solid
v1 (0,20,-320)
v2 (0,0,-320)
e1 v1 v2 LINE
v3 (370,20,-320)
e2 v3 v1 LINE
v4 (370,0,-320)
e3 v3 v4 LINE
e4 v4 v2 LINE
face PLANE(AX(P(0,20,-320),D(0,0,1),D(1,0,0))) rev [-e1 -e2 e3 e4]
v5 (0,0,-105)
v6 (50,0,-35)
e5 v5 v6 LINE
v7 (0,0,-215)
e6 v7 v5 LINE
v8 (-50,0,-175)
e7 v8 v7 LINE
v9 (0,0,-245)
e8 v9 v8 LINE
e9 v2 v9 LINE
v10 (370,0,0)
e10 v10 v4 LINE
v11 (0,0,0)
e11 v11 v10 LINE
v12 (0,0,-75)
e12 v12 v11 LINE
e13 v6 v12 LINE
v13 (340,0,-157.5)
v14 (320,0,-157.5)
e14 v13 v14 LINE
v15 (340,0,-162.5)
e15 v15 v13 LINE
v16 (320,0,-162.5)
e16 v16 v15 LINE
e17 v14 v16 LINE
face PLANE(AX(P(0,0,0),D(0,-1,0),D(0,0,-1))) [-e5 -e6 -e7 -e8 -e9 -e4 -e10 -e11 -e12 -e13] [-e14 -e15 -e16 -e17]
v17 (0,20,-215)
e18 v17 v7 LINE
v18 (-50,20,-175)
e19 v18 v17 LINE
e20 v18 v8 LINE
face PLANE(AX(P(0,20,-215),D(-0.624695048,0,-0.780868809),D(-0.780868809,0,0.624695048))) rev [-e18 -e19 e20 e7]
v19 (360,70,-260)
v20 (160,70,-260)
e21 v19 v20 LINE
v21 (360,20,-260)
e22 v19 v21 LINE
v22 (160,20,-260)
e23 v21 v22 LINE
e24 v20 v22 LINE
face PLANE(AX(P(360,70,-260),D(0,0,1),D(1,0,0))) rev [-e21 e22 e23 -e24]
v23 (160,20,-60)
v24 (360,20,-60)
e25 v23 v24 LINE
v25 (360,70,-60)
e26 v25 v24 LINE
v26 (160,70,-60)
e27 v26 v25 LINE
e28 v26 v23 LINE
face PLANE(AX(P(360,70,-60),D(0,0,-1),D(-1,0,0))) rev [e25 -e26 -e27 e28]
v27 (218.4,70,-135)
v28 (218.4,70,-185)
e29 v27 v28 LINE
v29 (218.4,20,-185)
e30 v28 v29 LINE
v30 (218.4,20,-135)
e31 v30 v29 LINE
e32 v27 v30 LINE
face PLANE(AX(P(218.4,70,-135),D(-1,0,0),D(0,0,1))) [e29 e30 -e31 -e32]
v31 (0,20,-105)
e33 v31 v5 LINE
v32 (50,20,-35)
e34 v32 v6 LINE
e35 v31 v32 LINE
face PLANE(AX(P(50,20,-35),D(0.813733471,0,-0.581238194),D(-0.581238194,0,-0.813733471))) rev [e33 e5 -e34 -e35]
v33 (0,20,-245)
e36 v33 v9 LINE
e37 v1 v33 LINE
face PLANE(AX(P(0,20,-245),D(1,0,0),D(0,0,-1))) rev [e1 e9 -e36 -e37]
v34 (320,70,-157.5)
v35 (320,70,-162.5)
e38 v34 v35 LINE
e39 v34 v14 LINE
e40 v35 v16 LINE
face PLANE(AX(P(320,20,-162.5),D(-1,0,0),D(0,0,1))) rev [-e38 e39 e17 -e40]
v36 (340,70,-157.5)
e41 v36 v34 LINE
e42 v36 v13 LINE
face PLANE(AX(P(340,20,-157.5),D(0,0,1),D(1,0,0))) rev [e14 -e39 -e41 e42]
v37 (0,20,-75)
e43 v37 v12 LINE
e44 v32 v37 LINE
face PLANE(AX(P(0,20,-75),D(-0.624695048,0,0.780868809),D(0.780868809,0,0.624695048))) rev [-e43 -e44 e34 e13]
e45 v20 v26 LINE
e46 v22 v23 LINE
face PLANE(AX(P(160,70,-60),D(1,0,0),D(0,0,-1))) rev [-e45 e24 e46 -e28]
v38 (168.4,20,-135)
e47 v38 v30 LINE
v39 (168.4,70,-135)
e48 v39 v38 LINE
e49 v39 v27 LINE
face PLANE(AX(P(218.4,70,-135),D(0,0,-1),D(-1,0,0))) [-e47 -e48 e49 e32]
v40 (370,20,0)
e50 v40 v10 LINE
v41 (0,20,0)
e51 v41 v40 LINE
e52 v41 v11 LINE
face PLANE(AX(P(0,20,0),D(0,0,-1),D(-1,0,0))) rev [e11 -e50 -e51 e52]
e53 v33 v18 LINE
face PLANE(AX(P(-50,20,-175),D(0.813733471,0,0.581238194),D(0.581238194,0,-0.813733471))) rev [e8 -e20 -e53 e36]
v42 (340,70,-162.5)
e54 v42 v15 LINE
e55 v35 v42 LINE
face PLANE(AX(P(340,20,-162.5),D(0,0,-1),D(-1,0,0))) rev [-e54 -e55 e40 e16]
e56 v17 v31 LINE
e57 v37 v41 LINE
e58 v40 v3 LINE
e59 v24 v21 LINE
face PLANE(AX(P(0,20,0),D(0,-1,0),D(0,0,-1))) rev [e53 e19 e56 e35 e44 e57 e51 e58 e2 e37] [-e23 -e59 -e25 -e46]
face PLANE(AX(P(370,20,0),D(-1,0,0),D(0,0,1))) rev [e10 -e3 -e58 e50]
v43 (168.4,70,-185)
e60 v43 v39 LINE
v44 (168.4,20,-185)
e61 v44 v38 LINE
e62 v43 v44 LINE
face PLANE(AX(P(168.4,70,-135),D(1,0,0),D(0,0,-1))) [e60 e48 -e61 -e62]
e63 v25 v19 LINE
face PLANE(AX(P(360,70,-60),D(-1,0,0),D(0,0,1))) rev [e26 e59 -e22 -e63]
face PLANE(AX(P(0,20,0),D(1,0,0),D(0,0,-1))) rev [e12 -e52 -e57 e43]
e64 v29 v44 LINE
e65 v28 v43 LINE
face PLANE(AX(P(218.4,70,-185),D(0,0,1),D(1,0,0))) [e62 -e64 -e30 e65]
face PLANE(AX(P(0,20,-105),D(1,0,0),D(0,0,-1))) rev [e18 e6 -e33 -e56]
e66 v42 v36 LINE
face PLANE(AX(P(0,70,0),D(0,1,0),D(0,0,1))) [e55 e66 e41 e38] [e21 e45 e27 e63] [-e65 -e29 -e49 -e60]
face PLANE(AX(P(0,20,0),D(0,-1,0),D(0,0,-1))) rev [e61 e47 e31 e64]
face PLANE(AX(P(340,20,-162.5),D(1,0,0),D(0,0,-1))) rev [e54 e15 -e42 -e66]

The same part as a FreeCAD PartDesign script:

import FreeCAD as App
import Part
import Sketcher

V = App.Vector


def add_polygon(sketch, points):
    """Adds a closed chain of lines whose ends are joined by coincident constraints."""
    first, n = sketch.GeometryCount, len(points)
    for a, b in zip(points, points[1:] + points[:1]):
        sketch.addGeometry(Part.LineSegment(App.Vector(*a, 0), App.Vector(*b, 0)), False)
    for i in range(n):
        sketch.addConstraint(Sketcher.Constraint("Coincident", first + i, 2, first + (i + 1) % n, 1))

doc = App.newDocument("Part")
params = doc.addObject("Spreadsheet::Sheet", "Params")
for row, (alias, value) in enumerate([
    ("sketch1_width", "370 mm"),
    ("sketch1_height", "75 mm"),
    ("sketch1_height2", "320 mm"),
    ("sketch1_height3", "110 mm"),
    ("pad1_length", "20 mm"),
    ("sketch2_width", "20 mm"),
    ("sketch2_height", "5 mm"),
    ("sketch3_width", "200 mm"),
    ("sketch3_width2", "50 mm"),
    ("pad2_length", "50 mm"),
    ("sketch4_width", "20 mm"),
    ("sketch4_height", "5 mm"),
], start=1):
    params.set(f"A{row}", alias)
    params.set(f"B{row}", "=" + value)
    params.setAlias(f"B{row}", alias)

body = doc.addObject("PartDesign::Body", "Body")

sketch1 = doc.addObject("Sketcher::SketchObject", "Sketch")
body.addObject(sketch1)
sketch1.AttachmentSupport = (doc.XZ_Plane, [""])
sketch1.MapMode = "FlatFace"
add_polygon(sketch1, [(50, -35), (0, -75), (0, 0), (370, 0), (370, -320), (0, -320), (0, -245), (-50, -175), (0, -215), (0, -105)])
sketch1.addConstraint([
    Sketcher.Constraint("Vertical", 1),
    Sketcher.Constraint("Horizontal", 2),
    Sketcher.Constraint("Vertical", 3),
    Sketcher.Constraint("Horizontal", 4),
    Sketcher.Constraint("Vertical", 5),
    Sketcher.Constraint("Vertical", 8),
    Sketcher.Constraint("Coincident", 1, 2, -1, 1),
    Sketcher.Constraint("PointOnObject", 4, 2, -2),
    Sketcher.Constraint("PointOnObject", 7, 2, -2),
    Sketcher.Constraint("Equal", 1, 5),
    Sketcher.Constraint("Equal", 0, 7),
    Sketcher.Constraint("Equal", 6, 9),
    Sketcher.Constraint("DistanceX", 2, 1, 2, 2, 370.0),
    Sketcher.Constraint("DistanceY", 1, 1, 1, 2, 75.0),
    Sketcher.Constraint("DistanceY", 3, 2, 3, 1, 320.0),
    Sketcher.Constraint("DistanceY", 8, 1, 8, 2, 110.0),
    Sketcher.Constraint("DistanceX", 6, 2, -1, 1, 50.0),
    Sketcher.Constraint("DistanceY", 6, 2, -1, 1, 175.0),
    Sketcher.Constraint("DistanceY", 7, 2, -1, 1, 215.0),
])
sketch1.setExpression("Constraints[22]", "Params.sketch1_width")
sketch1.setExpression("Constraints[23]", "Params.sketch1_height")
sketch1.setExpression("Constraints[24]", "Params.sketch1_height2")
sketch1.setExpression("Constraints[25]", "Params.sketch1_height3")
pad1 = doc.addObject("PartDesign::Pad", "Pad")
body.addObject(pad1)
pad1.Profile = sketch1
pad1.setExpression("Length", "Params.pad1_length")
pad1.Reversed = True

sketch2 = doc.addObject("Sketcher::SketchObject", "Sketch001")
body.addObject(sketch2)
sketch2.AttachmentSupport = (doc.XZ_Plane, [""])
sketch2.MapMode = "FlatFace"
add_polygon(sketch2, [(320, -158), (320, -162), (340, -162), (340, -158)])
sketch2.addConstraint([
    Sketcher.Constraint("Vertical", 0),
    Sketcher.Constraint("Horizontal", 1),
    Sketcher.Constraint("Vertical", 2),
    Sketcher.Constraint("Horizontal", 3),
    Sketcher.Constraint("DistanceX", 1, 1, 1, 2, 20.0),
    Sketcher.Constraint("DistanceY", 0, 2, 0, 1, 5.0),
    Sketcher.Constraint("DistanceX", -1, 1, 0, 2, 320.0),
    Sketcher.Constraint("DistanceY", 0, 2, -1, 1, 162.5),
])
sketch2.setExpression("Constraints[8]", "Params.sketch2_width")
sketch2.setExpression("Constraints[9]", "Params.sketch2_height")
pocket1 = doc.addObject("PartDesign::Pocket", "Pocket")
body.addObject(pocket1)
pocket1.Profile = sketch2
pocket1.Type = "ThroughAll"
pocket1.Midplane = True

sketch3 = doc.addObject("Sketcher::SketchObject", "Sketch002")
body.addObject(sketch3)
sketch3.AttachmentSupport = (doc.XZ_Plane, [""])
sketch3.MapMode = "FlatFace"
sketch3.AttachmentOffset = App.Placement(V(0, 0, -20), App.Rotation())
add_polygon(sketch3, [(160, -260), (160, -60), (360, -60), (360, -260)])
add_polygon(sketch3, [(218, -135), (168, -135), (168, -185), (218, -185)])
sketch3.addConstraint([
    Sketcher.Constraint("Vertical", 0),
    Sketcher.Constraint("Horizontal", 1),
    Sketcher.Constraint("Vertical", 2),
    Sketcher.Constraint("Horizontal", 3),
    Sketcher.Constraint("Horizontal", 4),
    Sketcher.Constraint("Vertical", 5),
    Sketcher.Constraint("Horizontal", 6),
    Sketcher.Constraint("Vertical", 7),
    Sketcher.Constraint("Equal", 3, 0),
    Sketcher.Constraint("Equal", 6, 5),
    Sketcher.Constraint("DistanceX", 1, 1, 1, 2, 200.0),
    Sketcher.Constraint("DistanceX", 4, 2, 4, 1, 50.0),
    Sketcher.Constraint("DistanceX", -1, 1, 0, 2, 160.0),
    Sketcher.Constraint("DistanceY", 0, 2, -1, 1, 60.0),
    Sketcher.Constraint("DistanceY", 4, 2, -1, 1, 135.0),
    Sketcher.Constraint("DistanceX", -1, 1, 4, 2, 168.4),
])
sketch3.setExpression("Constraints[18]", "Params.sketch3_width")
sketch3.setExpression("Constraints[19]", "Params.sketch3_width2")
pad2 = doc.addObject("PartDesign::Pad", "Pad001")
body.addObject(pad2)
pad2.Profile = sketch3
pad2.setExpression("Length", "Params.pad2_length")
pad2.Reversed = True

sketch4 = doc.addObject("Sketcher::SketchObject", "Sketch003")
body.addObject(sketch4)
sketch4.AttachmentSupport = (doc.XZ_Plane, [""])
sketch4.MapMode = "FlatFace"
add_polygon(sketch4, [(320, -158), (320, -162), (340, -162), (340, -158)])
sketch4.addConstraint([
    Sketcher.Constraint("Vertical", 0),
    Sketcher.Constraint("Horizontal", 1),
    Sketcher.Constraint("Vertical", 2),
    Sketcher.Constraint("Horizontal", 3),
    Sketcher.Constraint("DistanceX", 1, 1, 1, 2, 20.0),
    Sketcher.Constraint("DistanceY", 0, 2, 0, 1, 5.0),
    Sketcher.Constraint("DistanceX", -1, 1, 0, 2, 320.0),
    Sketcher.Constraint("DistanceY", 0, 2, -1, 1, 162.5),
])
sketch4.setExpression("Constraints[8]", "Params.sketch4_width")
sketch4.setExpression("Constraints[9]", "Params.sketch4_height")
pocket2 = doc.addObject("PartDesign::Pocket", "Pocket001")
body.addObject(pocket2)
pocket2.Profile = sketch4
pocket2.Type = "ThroughAll"

doc.recompute()
